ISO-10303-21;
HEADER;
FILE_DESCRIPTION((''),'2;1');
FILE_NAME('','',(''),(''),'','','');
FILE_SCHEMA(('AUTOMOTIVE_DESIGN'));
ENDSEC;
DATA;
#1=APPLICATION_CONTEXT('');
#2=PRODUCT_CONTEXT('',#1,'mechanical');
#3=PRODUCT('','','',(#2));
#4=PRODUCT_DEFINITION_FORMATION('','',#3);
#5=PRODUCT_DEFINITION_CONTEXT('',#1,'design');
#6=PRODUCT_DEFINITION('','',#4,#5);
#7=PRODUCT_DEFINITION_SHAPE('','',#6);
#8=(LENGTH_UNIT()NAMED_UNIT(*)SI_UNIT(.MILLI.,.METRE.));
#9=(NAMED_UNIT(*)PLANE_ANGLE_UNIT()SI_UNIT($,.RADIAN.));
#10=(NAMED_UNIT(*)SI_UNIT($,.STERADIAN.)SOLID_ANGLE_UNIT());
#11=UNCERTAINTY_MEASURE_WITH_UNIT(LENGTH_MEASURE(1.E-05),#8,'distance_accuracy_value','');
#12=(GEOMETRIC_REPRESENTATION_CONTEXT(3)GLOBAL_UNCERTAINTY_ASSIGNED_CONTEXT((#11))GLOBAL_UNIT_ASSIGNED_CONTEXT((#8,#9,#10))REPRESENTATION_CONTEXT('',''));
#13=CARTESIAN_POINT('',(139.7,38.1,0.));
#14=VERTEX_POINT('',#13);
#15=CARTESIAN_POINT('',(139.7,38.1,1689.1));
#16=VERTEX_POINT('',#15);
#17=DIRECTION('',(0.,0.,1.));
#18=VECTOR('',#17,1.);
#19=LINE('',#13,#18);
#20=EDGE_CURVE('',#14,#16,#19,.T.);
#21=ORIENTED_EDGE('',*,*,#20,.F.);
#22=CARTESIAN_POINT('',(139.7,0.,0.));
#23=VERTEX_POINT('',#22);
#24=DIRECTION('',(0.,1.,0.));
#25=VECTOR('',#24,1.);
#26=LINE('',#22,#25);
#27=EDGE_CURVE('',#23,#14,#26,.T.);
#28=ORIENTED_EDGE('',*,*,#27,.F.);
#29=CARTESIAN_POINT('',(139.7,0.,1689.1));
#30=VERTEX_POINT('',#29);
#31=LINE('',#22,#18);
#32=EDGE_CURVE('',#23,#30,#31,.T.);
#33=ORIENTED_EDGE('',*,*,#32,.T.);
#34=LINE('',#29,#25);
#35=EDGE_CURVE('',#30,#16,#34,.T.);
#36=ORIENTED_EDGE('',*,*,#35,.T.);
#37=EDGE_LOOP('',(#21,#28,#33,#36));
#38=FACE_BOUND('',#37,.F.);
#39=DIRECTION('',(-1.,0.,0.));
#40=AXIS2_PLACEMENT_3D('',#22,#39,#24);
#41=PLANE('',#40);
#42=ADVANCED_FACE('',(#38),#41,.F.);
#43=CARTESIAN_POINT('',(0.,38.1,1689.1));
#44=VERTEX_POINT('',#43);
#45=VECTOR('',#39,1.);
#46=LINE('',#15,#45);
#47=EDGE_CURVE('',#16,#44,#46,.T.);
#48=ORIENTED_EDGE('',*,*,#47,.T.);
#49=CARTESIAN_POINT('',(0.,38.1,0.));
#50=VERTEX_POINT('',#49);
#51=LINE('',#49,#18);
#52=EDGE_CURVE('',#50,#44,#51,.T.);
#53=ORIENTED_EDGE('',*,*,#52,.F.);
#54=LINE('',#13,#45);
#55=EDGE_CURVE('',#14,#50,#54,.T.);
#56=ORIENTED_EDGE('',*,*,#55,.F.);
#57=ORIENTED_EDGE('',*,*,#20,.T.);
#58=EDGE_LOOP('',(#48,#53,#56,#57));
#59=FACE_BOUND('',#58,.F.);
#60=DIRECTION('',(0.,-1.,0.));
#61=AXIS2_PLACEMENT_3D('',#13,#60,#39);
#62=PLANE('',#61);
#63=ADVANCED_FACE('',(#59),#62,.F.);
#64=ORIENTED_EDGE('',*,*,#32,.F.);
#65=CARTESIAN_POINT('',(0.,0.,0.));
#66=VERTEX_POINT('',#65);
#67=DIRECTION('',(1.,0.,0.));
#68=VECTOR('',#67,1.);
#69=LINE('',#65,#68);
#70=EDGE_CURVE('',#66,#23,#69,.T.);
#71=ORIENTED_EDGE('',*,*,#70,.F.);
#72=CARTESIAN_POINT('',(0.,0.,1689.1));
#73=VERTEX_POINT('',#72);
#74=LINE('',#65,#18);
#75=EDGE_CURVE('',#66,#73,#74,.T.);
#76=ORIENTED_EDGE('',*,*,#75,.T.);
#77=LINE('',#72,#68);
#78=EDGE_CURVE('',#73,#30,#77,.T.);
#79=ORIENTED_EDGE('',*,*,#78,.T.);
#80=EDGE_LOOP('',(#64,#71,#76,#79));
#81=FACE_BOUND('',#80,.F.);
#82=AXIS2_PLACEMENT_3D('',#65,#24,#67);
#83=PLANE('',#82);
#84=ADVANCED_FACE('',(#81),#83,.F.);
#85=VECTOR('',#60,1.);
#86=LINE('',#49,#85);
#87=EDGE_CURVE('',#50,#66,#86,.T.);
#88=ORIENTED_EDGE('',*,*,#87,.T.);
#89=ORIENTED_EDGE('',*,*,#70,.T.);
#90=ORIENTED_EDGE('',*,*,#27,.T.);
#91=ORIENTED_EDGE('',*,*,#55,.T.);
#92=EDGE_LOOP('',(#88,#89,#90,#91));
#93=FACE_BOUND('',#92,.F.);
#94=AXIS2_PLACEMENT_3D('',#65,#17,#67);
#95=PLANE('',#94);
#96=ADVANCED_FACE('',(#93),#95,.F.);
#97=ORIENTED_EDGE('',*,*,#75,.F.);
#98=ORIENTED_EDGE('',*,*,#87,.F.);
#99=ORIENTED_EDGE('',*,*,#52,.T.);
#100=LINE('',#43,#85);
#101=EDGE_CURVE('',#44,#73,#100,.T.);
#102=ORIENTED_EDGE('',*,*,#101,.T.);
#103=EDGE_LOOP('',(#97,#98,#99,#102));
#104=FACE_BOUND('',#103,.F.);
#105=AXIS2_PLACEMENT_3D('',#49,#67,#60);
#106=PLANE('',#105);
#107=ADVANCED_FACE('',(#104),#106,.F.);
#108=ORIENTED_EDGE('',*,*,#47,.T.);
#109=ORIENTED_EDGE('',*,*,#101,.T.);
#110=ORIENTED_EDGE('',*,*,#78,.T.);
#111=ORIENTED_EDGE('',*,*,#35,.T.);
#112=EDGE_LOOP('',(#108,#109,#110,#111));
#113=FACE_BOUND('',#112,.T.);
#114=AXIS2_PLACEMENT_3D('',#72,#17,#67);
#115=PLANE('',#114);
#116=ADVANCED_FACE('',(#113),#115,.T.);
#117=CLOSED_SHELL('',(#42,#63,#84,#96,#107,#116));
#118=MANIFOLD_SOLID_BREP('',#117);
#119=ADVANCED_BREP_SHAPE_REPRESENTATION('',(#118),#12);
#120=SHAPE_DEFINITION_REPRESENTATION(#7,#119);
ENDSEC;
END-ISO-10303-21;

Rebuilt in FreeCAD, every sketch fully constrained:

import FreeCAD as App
import Part
import Sketcher
Q = App.Units.Quantity

doc = App.newDocument("Part")
body = doc.addObject("PartDesign::Body", "Body")

sketch1 = body.newObject("Sketcher::SketchObject", "Sketch")
sketch1.AttachmentSupport = (doc.getObject("XY_Plane"), [""])
sketch1.MapMode = "FlatFace"
sketch1.addGeometry([
    Part.LineSegment(App.Vector(0, 38, 0), App.Vector(0, 0, 0)),
    Part.LineSegment(App.Vector(0, 0, 0), App.Vector(140, 0, 0)),
    Part.LineSegment(App.Vector(140, 0, 0), App.Vector(140, 38, 0)),
    Part.LineSegment(App.Vector(140, 38, 0), App.Vector(0, 38, 0)),
], False)
sketch1.addConstraint([
    Sketcher.Constraint("Coincident", 0, 2, 1, 1),
    Sketcher.Constraint("Coincident", 1, 2, 2, 1),
    Sketcher.Constraint("Coincident", 2, 2, 3, 1),
    Sketcher.Constraint("Coincident", 3, 2, 0, 1),
    Sketcher.Constraint("Vertical", 0),
    Sketcher.Constraint("Horizontal", 1),
    Sketcher.Constraint("Vertical", 2),
    Sketcher.Constraint("Horizontal", 3),
    Sketcher.Constraint("Coincident", 0, 2, -1, 1),
    Sketcher.Constraint("DistanceX", 1, 1, 1, 2, Q("5.5 in")),
    Sketcher.Constraint("DistanceY", 0, 2, 0, 1, Q("1.5 in")),
])
pad1 = body.newObject("PartDesign::Pad", "Pad")
pad1.Profile = sketch1
pad1.Length = Q("66.5 in")

doc.recompute()
